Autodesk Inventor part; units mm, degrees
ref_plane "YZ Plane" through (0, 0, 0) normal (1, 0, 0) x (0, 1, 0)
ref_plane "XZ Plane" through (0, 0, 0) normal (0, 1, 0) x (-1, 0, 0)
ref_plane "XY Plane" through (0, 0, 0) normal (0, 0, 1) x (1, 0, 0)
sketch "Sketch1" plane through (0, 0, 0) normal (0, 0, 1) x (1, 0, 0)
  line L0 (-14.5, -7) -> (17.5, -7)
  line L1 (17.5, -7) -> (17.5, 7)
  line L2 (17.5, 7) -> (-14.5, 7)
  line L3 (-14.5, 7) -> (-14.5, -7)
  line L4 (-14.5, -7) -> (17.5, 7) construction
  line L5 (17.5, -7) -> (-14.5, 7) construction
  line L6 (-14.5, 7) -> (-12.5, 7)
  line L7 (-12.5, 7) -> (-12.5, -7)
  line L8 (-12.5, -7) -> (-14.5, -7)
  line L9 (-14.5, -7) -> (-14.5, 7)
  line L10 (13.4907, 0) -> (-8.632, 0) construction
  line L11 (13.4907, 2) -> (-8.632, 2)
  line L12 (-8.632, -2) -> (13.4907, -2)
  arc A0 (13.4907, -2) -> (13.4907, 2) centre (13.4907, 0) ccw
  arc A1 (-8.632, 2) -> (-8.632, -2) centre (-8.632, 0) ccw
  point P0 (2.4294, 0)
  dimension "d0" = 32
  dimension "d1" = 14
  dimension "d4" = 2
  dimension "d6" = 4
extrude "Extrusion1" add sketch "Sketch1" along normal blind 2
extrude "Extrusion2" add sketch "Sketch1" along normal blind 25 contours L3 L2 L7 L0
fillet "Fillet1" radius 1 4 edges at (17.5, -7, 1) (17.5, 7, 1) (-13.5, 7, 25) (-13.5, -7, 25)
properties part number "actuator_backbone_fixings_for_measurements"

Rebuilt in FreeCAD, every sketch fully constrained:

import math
import FreeCAD as App
import Part
import Sketcher


def edges_at(feature, points):
    """Names of the edges that pass closest to the given points."""
    edges = feature.Shape.Edges
    near = lambda p: min(range(len(edges)), key=lambda i: edges[i].distToShape(Part.Vertex(*p))[0])
    return sorted({f"Edge{near(p) + 1}" for p in points})


def add_polygon(sketch, points):
    """Adds a closed chain of lines whose ends are joined by coincident constraints."""
    first, n = sketch.GeometryCount, len(points)
    for a, b in zip(points, points[1:] + points[:1]):
        sketch.addGeometry(Part.LineSegment(App.Vector(*a, 0), App.Vector(*b, 0)), False)
    for i in range(n):
        sketch.addConstraint(Sketcher.Constraint("Coincident", first + i, 2, first + (i + 1) % n, 1))

doc = App.newDocument("Part")
body = doc.addObject("PartDesign::Body", "Body")

sketch1 = doc.addObject("Sketcher::SketchObject", "Sketch")
body.addObject(sketch1)
sketch1.AttachmentSupport = (doc.XY_Plane, [""])
sketch1.MapMode = "FlatFace"
add_polygon(sketch1, [(-14.5, 7), (-14.5, -7), (17.5, -7), (17.5, 7)])
sketch1.addGeometry(Part.ArcOfCircle(Part.Circle(App.Vector(13.4907, 0, 0), App.Vector(0, 0, 1), 2), math.radians(-90), math.radians(90)), False)
sketch1.addGeometry(Part.LineSegment(App.Vector(13.4907, -2, 0), App.Vector(-8.632, -2, 0)), False)
sketch1.addGeometry(Part.ArcOfCircle(Part.Circle(App.Vector(-8.632, 0, 0), App.Vector(0, 0, 1), 2), math.radians(90), math.radians(270)), False)
sketch1.addGeometry(Part.LineSegment(App.Vector(-8.632, 2, 0), App.Vector(13.4907, 2, 0)), False)
sketch1.addConstraint([
    Sketcher.Constraint("Tangent", 4, 1, 5, 1),
    Sketcher.Constraint("Tangent", 5, 2, 6, 2),
    Sketcher.Constraint("Tangent", 6, 1, 7, 1),
    Sketcher.Constraint("Tangent", 7, 2, 4, 2),
    Sketcher.Constraint("Vertical", 0),
    Sketcher.Constraint("Horizontal", 1),
    Sketcher.Constraint("Vertical", 2),
    Sketcher.Constraint("Horizontal", 3),
    Sketcher.Constraint("Horizontal", 5),
    Sketcher.Constraint("Horizontal", 7),
    Sketcher.Constraint("PointOnObject", 4, 3, -1),
    Sketcher.Constraint("Radius", 4, 2.0),
    Sketcher.Constraint("DistanceX", 1, 1, 1, 2, 32.0),
    Sketcher.Constraint("DistanceY", 0, 2, 0, 1, 14.0),
    Sketcher.Constraint("DistanceY", 0, 2, -1, 1, 7.0),
    Sketcher.Constraint("DistanceX", 0, 2, -1, 1, 14.5),
    Sketcher.Constraint("DistanceX", 5, 2, 5, 1, 22.1227),
    Sketcher.Constraint("DistanceX", 6, 3, -1, 1, 8.632),
])
pad1 = doc.addObject("PartDesign::Pad", "Pad")
body.addObject(pad1)
pad1.Profile = sketch1
pad1.Length = 2

sketch2 = doc.addObject("Sketcher::SketchObject", "Sketch001")
body.addObject(sketch2)
sketch2.AttachmentSupport = (doc.XY_Plane, [""])
sketch2.MapMode = "FlatFace"
add_polygon(sketch2, [(-14.5, 7), (-14.5, -7), (-12.5, -7), (-12.5, 7)])
sketch2.addConstraint([
    Sketcher.Constraint("Vertical", 0),
    Sketcher.Constraint("Horizontal", 1),
    Sketcher.Constraint("Vertical", 2),
    Sketcher.Constraint("Horizontal", 3),
    Sketcher.Constraint("DistanceX", 1, 1, 1, 2, 2.0),
    Sketcher.Constraint("DistanceY", 0, 2, 0, 1, 14.0),
    Sketcher.Constraint("DistanceY", 0, 2, -1, 1, 7.0),
    Sketcher.Constraint("DistanceX", 0, 2, -1, 1, 14.5),
])
pad2 = doc.addObject("PartDesign::Pad", "Pad001")
body.addObject(pad2)
pad2.Profile = sketch2
pad2.Length = 25
doc.recompute()

fillet = doc.addObject("PartDesign::Fillet", "Fillet")
body.addObject(fillet)
fillet.Base = (pad2, edges_at(pad2, [
    (17.5, -7, 1),
    (17.5, 7, 1),
    (-13.5, 7, 25),
    (-13.5, -7, 25),
]))
fillet.Radius = 1

doc.recompute()
